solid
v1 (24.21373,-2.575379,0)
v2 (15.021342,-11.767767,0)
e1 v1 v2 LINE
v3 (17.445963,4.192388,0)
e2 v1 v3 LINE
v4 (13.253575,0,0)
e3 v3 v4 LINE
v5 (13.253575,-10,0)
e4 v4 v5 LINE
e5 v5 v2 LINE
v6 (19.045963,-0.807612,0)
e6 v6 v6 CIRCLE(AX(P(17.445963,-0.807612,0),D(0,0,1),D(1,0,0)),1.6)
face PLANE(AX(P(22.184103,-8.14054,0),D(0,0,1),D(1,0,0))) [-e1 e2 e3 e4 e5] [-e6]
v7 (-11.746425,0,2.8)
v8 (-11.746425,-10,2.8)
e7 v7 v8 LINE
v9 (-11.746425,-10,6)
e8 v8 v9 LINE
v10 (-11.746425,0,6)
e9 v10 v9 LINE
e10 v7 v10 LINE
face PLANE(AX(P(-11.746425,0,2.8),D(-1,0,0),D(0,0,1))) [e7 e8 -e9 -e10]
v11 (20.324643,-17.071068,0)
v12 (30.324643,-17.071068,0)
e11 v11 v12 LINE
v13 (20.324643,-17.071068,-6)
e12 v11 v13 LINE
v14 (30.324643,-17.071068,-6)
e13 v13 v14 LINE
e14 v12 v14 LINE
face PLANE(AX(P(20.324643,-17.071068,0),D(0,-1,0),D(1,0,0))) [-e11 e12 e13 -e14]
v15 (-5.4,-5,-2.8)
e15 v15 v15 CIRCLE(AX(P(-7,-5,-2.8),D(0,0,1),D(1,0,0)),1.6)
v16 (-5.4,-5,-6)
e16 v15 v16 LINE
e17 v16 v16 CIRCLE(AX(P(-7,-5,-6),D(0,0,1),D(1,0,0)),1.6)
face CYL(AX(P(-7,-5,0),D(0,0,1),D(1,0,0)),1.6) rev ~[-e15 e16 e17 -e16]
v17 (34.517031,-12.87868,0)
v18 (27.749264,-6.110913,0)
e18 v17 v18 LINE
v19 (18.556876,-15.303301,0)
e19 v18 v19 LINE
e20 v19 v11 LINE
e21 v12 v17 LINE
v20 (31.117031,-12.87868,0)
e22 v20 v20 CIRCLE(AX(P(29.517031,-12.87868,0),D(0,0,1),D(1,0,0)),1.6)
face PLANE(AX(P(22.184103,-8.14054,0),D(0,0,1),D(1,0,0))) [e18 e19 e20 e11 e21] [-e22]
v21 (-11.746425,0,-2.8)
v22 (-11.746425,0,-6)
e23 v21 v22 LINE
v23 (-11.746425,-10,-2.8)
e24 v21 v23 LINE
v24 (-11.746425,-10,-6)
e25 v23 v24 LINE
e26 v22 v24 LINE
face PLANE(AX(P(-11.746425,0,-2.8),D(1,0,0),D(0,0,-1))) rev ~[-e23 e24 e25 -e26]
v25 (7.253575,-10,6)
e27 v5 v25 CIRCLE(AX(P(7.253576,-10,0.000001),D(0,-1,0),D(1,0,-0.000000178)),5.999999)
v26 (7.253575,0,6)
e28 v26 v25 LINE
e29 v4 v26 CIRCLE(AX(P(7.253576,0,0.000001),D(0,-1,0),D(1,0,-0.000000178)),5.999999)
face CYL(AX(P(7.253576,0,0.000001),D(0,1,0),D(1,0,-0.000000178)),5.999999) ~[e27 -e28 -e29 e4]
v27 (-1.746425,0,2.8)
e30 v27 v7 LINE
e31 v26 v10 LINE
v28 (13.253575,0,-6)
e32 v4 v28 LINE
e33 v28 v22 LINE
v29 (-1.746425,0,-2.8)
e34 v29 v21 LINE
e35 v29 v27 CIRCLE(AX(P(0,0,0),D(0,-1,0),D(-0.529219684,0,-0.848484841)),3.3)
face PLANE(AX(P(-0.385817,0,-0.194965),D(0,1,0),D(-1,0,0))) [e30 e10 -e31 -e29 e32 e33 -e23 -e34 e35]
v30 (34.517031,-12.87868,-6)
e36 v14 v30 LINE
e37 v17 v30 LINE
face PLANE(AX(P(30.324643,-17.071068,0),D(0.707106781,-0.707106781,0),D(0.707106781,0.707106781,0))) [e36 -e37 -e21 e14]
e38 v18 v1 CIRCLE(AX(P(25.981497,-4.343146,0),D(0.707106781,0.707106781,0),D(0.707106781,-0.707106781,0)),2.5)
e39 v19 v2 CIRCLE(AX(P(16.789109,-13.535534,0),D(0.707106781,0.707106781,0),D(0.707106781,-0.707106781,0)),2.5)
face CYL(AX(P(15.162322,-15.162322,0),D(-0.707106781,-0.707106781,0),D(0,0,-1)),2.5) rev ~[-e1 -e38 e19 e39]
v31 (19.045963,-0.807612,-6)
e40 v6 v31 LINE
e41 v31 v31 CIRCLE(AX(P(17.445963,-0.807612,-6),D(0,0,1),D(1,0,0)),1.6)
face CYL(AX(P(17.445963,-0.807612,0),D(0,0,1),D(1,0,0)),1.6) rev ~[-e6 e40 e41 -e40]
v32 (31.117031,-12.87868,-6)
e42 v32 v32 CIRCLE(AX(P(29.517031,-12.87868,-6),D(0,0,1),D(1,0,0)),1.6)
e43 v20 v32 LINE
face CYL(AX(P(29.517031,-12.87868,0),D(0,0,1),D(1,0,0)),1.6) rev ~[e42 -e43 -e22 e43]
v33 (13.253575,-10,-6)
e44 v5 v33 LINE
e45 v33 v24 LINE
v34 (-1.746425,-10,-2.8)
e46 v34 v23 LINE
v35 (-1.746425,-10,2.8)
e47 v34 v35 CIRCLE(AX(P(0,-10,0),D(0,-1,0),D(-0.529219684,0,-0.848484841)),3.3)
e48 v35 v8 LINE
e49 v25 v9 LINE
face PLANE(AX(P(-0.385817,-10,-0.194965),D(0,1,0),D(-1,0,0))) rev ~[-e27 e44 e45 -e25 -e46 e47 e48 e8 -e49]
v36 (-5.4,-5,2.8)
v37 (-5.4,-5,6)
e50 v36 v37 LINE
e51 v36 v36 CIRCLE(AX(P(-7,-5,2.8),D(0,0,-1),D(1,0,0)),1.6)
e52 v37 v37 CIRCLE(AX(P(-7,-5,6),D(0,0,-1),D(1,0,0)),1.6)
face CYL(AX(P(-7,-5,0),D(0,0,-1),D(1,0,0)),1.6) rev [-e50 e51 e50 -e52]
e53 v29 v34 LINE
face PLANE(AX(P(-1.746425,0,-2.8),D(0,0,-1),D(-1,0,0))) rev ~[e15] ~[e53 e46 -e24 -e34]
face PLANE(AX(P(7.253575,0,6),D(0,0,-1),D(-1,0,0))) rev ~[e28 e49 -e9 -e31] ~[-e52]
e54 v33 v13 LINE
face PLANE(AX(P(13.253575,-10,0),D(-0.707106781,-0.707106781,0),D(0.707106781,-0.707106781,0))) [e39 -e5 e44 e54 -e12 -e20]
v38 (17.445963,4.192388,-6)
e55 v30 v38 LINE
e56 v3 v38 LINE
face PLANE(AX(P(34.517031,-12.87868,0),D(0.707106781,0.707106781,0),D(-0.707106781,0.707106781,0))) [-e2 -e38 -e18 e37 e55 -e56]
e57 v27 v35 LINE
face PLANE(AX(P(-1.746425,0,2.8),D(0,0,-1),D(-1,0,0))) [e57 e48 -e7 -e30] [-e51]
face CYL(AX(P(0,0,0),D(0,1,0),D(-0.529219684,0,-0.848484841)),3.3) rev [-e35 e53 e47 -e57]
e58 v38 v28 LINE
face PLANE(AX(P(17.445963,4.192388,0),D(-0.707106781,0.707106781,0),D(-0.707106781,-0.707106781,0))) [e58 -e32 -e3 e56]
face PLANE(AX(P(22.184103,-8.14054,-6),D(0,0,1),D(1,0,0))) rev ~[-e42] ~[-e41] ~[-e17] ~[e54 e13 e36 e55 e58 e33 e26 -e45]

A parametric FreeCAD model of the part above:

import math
import FreeCAD as App
import Part
import Sketcher

V = App.Vector

doc = App.newDocument("Part")
params = doc.addObject("Spreadsheet::Sheet", "Params")
for row, (alias, value) in enumerate([
    ("sketch1_radius", "5.999999 mm"),
    ("sketch1_radius2", "3.3 mm"),
    ("sketch1_width", "25 mm"),
    ("sketch1_width2", "10 mm"),
    ("sketch1_height", "3.2 mm"),
    ("pad1_length", "10 mm"),
    ("sketch2_diameter", "3.2 mm"),
    ("sketch2_width", "10 mm"),
    ("sketch2_length", "10 mm"),
    ("pad2_length", "6 mm"),
    ("sketch3_diameter", "5 mm"),
    ("sketch4_diameter", "3.2 mm"),
], start=1):
    params.set(f"A{row}", alias)
    params.set(f"B{row}", "=" + value)
    params.setAlias(f"B{row}", alias)

body = doc.addObject("PartDesign::Body", "Body")

# Sketch on XZ plane
sketch1 = body.newObject("Sketcher::SketchObject", "Sketch")
sketch1.AttachmentSupport = (doc.getObject("XZ_Plane"), [""])
sketch1.MapMode = "FlatFace"
sketch1.addGeometry([
    Part.LineSegment(V(-11.746425, -6, 0), V(13.253575, -6, 0)),  # 0
    Part.LineSegment(V(13.253575, -6, 0), V(13.253575, 0, 0)),  # 1
    Part.ArcOfCircle(Part.Circle(V(7.253576, 0.000001, 0), V(0, 0, 1), 5.999999), math.radians(-0.00001), math.radians(90.00001)),  # 2
    Part.LineSegment(V(7.253575, 6, 0), V(-11.746425, 6, 0)),  # 3
    Part.LineSegment(V(-11.746425, 6, 0), V(-11.746425, 2.8, 0)),  # 4
    Part.LineSegment(V(-11.746425, 2.8, 0), V(-1.746425, 2.8, 0)),  # 5
    Part.ArcOfCircle(Part.Circle(V(0, 0, 0), V(0, 0, 1), 3.3), math.radians(-121.952747), math.radians(121.952747)),  # 6
    Part.LineSegment(V(-1.746425, -2.8, 0), V(-11.746425, -2.8, 0)),  # 7
    Part.LineSegment(V(-11.746425, -2.8, 0), V(-11.746425, -6, 0)),  # 8
], False)
sketch1.addConstraint([
    Sketcher.Constraint("Coincident", 0, 2, 1, 1),
    Sketcher.Constraint("Tangent", 1, 2, 2, 1),
    Sketcher.Constraint("Tangent", 2, 2, 3, 1),
    Sketcher.Constraint("Coincident", 3, 2, 4, 1),
    Sketcher.Constraint("Coincident", 4, 2, 5, 1),
    Sketcher.Constraint("Coincident", 5, 2, 6, 2),
    Sketcher.Constraint("Coincident", 6, 1, 7, 1),
    Sketcher.Constraint("Coincident", 7, 2, 8, 1),
    Sketcher.Constraint("Coincident", 8, 2, 0, 1),
    Sketcher.Constraint("Horizontal", 0),
    Sketcher.Constraint("Vertical", 1),
    Sketcher.Constraint("Horizontal", 3),
    Sketcher.Constraint("Vertical", 4),
    Sketcher.Constraint("Horizontal", 5),
    Sketcher.Constraint("Horizontal", 7),
    Sketcher.Constraint("Vertical", 8),
    Sketcher.Constraint("Coincident", 6, 3, -1, 1),
    Sketcher.Constraint("Symmetric", 4, 2, 7, 2, -1),
    Sketcher.Constraint("PointOnObject", 2, 3, -1),
    Sketcher.Constraint("Equal", 4, 8),
    Sketcher.Constraint("Radius", 2, 5.999999),
    Sketcher.Constraint("Radius", 6, 3.3),
    Sketcher.Constraint("DistanceX", 0, 1, 0, 2, 25.0),
    Sketcher.Constraint("DistanceX", 5, 1, 5, 2, 10.0),
    Sketcher.Constraint("DistanceY", 4, 2, 4, 1, 3.2),
])
sketch1.setExpression("Constraints[20]", "Params.sketch1_radius")
sketch1.setExpression("Constraints[21]", "Params.sketch1_radius2")
sketch1.setExpression("Constraints[22]", "Params.sketch1_width")
sketch1.setExpression("Constraints[23]", "Params.sketch1_width2")
sketch1.setExpression("Constraints[24]", "Params.sketch1_height")
pad1 = body.newObject("PartDesign::Pad", "Pad")
pad1.Profile = sketch1
pad1.setExpression("Length", "Params.pad1_length")

# Sketch on XY plane
sketch2 = body.newObject("Sketcher::SketchObject", "Sketch001")
sketch2.AttachmentSupport = (doc.getObject("XY_Plane"), [""])
sketch2.MapMode = "FlatFace"
sketch2.addGeometry([
    Part.LineSegment(V(13.253575, -10, 0), V(20.324643, -17.071068, 0)),  # 0
    Part.LineSegment(V(20.324643, -17.071068, 0), V(30.324643, -17.071068, 0)),  # 1
    Part.LineSegment(V(30.324643, -17.071068, 0), V(34.517031, -12.87868, 0)),  # 2
    Part.LineSegment(V(34.517031, -12.87868, 0), V(17.445963, 4.192388, 0)),  # 3
    Part.LineSegment(V(17.445963, 4.192388, 0), V(13.253575, 0, 0)),  # 4
    Part.LineSegment(V(13.253575, 0, 0), V(13.253575, -10, 0)),  # 5
    Part.Circle(V(29.517031, -12.87868, 0), V(0, 0, 1), 1.6),  # 6
    Part.Circle(V(17.445963, -0.807612, 0), V(0, 0, 1), 1.6),  # 7
], False)
sketch2.addConstraint([
    Sketcher.Constraint("Coincident", 0, 2, 1, 1),
    Sketcher.Constraint("Coincident", 1, 2, 2, 1),
    Sketcher.Constraint("Coincident", 2, 2, 3, 1),
    Sketcher.Constraint("Coincident", 3, 2, 4, 1),
    Sketcher.Constraint("Coincident", 4, 2, 5, 1),
    Sketcher.Constraint("Coincident", 5, 2, 0, 1),
    Sketcher.Constraint("Horizontal", 1),
    Sketcher.Constraint("Vertical", 5),
    Sketcher.Constraint("Equal", 6, 7),
    Sketcher.Constraint("PointOnObject", 4, 2, -1),
    Sketcher.Constraint("Perpendicular", 0, 2),
    Sketcher.Constraint("Perpendicular", 2, 3),
    Sketcher.Constraint("Perpendicular", 3, 4),
    Sketcher.Constraint("Horizontal", 6, 3, 2, 2),
    Sketcher.Constraint("Vertical", 7, 3, 3, 2),
    Sketcher.Constraint("Equal", 1, 5),
    Sketcher.Constraint("Equal", 2, 4),
    Sketcher.Constraint("Diameter", 6, 3.2),
    Sketcher.Constraint("DistanceX", 1, 1, 1, 2, 10.0),
    Sketcher.Constraint("Distance", 0, 10.0),
    Sketcher.Constraint("DistanceX", 6, 3, 2, 2, 5.0),
    Sketcher.Constraint("DistanceY", 7, 3, 3, 2, 5.0),
    Sketcher.Constraint("Distance", 2, 5.928932),
    Sketcher.Constraint("DistanceX", -1, 1, 6, 3, 29.517031),
])
sketch2.setExpression("Constraints[17]", "Params.sketch2_diameter")
sketch2.setExpression("Constraints[18]", "Params.sketch2_width")
sketch2.setExpression("Constraints[19]", "Params.sketch2_length")
pad2 = body.newObject("PartDesign::Pad", "Pad001")
pad2.Profile = sketch2
pad2.setExpression("Length", "Params.pad2_length")
pad2.Reversed = True

# Sketch on an angled plane
sketch3 = body.newObject("Sketcher::SketchObject", "Sketch002")
sketch3.Placement = App.Placement(V(0, 0, 3.5), App.Rotation(V(0, 0, -1), V(0.707106781, -0.707106781, 0), V(-0.707106781, -0.707106781, 0), "ZXY"))
sketch3.addGeometry(Part.Circle(V(3.5, 21.442761, 0), V(0, 0, 1), 2.5), False)
sketch3.addConstraint([
    Sketcher.Constraint("Diameter", 0, 5.0),
    Sketcher.Constraint("DistanceX", -1, 1, 0, 3, 3.5),
    Sketcher.Constraint("DistanceY", -1, 1, 0, 3, 21.442761),
])
sketch3.setExpression("Constraints[0]", "Params.sketch3_diameter")
pocket1 = body.newObject("PartDesign::Pocket", "Pocket")
pocket1.Profile = sketch3
pocket1.Type = "ThroughAll"

# Sketch on XY plane
sketch4 = body.newObject("Sketcher::SketchObject", "Sketch003")
sketch4.AttachmentSupport = (doc.getObject("XY_Plane"), [""])
sketch4.MapMode = "FlatFace"
sketch4.addGeometry(Part.Circle(V(-7, -5, 0), V(0, 0, 1), 1.6), False)
sketch4.addConstraint([
    Sketcher.Constraint("Diameter", 0, 3.2),
    Sketcher.Constraint("DistanceX", 0, 3, -1, 1, 7.0),
    Sketcher.Constraint("DistanceY", 0, 3, -1, 1, 5.0),
])
sketch4.setExpression("Constraints[0]", "Params.sketch4_diameter")
pocket2 = body.newObject("PartDesign::Pocket", "Pocket001")
pocket2.Profile = sketch4
pocket2.Type = "ThroughAll"
pocket2.Midplane = True

doc.recompute()
